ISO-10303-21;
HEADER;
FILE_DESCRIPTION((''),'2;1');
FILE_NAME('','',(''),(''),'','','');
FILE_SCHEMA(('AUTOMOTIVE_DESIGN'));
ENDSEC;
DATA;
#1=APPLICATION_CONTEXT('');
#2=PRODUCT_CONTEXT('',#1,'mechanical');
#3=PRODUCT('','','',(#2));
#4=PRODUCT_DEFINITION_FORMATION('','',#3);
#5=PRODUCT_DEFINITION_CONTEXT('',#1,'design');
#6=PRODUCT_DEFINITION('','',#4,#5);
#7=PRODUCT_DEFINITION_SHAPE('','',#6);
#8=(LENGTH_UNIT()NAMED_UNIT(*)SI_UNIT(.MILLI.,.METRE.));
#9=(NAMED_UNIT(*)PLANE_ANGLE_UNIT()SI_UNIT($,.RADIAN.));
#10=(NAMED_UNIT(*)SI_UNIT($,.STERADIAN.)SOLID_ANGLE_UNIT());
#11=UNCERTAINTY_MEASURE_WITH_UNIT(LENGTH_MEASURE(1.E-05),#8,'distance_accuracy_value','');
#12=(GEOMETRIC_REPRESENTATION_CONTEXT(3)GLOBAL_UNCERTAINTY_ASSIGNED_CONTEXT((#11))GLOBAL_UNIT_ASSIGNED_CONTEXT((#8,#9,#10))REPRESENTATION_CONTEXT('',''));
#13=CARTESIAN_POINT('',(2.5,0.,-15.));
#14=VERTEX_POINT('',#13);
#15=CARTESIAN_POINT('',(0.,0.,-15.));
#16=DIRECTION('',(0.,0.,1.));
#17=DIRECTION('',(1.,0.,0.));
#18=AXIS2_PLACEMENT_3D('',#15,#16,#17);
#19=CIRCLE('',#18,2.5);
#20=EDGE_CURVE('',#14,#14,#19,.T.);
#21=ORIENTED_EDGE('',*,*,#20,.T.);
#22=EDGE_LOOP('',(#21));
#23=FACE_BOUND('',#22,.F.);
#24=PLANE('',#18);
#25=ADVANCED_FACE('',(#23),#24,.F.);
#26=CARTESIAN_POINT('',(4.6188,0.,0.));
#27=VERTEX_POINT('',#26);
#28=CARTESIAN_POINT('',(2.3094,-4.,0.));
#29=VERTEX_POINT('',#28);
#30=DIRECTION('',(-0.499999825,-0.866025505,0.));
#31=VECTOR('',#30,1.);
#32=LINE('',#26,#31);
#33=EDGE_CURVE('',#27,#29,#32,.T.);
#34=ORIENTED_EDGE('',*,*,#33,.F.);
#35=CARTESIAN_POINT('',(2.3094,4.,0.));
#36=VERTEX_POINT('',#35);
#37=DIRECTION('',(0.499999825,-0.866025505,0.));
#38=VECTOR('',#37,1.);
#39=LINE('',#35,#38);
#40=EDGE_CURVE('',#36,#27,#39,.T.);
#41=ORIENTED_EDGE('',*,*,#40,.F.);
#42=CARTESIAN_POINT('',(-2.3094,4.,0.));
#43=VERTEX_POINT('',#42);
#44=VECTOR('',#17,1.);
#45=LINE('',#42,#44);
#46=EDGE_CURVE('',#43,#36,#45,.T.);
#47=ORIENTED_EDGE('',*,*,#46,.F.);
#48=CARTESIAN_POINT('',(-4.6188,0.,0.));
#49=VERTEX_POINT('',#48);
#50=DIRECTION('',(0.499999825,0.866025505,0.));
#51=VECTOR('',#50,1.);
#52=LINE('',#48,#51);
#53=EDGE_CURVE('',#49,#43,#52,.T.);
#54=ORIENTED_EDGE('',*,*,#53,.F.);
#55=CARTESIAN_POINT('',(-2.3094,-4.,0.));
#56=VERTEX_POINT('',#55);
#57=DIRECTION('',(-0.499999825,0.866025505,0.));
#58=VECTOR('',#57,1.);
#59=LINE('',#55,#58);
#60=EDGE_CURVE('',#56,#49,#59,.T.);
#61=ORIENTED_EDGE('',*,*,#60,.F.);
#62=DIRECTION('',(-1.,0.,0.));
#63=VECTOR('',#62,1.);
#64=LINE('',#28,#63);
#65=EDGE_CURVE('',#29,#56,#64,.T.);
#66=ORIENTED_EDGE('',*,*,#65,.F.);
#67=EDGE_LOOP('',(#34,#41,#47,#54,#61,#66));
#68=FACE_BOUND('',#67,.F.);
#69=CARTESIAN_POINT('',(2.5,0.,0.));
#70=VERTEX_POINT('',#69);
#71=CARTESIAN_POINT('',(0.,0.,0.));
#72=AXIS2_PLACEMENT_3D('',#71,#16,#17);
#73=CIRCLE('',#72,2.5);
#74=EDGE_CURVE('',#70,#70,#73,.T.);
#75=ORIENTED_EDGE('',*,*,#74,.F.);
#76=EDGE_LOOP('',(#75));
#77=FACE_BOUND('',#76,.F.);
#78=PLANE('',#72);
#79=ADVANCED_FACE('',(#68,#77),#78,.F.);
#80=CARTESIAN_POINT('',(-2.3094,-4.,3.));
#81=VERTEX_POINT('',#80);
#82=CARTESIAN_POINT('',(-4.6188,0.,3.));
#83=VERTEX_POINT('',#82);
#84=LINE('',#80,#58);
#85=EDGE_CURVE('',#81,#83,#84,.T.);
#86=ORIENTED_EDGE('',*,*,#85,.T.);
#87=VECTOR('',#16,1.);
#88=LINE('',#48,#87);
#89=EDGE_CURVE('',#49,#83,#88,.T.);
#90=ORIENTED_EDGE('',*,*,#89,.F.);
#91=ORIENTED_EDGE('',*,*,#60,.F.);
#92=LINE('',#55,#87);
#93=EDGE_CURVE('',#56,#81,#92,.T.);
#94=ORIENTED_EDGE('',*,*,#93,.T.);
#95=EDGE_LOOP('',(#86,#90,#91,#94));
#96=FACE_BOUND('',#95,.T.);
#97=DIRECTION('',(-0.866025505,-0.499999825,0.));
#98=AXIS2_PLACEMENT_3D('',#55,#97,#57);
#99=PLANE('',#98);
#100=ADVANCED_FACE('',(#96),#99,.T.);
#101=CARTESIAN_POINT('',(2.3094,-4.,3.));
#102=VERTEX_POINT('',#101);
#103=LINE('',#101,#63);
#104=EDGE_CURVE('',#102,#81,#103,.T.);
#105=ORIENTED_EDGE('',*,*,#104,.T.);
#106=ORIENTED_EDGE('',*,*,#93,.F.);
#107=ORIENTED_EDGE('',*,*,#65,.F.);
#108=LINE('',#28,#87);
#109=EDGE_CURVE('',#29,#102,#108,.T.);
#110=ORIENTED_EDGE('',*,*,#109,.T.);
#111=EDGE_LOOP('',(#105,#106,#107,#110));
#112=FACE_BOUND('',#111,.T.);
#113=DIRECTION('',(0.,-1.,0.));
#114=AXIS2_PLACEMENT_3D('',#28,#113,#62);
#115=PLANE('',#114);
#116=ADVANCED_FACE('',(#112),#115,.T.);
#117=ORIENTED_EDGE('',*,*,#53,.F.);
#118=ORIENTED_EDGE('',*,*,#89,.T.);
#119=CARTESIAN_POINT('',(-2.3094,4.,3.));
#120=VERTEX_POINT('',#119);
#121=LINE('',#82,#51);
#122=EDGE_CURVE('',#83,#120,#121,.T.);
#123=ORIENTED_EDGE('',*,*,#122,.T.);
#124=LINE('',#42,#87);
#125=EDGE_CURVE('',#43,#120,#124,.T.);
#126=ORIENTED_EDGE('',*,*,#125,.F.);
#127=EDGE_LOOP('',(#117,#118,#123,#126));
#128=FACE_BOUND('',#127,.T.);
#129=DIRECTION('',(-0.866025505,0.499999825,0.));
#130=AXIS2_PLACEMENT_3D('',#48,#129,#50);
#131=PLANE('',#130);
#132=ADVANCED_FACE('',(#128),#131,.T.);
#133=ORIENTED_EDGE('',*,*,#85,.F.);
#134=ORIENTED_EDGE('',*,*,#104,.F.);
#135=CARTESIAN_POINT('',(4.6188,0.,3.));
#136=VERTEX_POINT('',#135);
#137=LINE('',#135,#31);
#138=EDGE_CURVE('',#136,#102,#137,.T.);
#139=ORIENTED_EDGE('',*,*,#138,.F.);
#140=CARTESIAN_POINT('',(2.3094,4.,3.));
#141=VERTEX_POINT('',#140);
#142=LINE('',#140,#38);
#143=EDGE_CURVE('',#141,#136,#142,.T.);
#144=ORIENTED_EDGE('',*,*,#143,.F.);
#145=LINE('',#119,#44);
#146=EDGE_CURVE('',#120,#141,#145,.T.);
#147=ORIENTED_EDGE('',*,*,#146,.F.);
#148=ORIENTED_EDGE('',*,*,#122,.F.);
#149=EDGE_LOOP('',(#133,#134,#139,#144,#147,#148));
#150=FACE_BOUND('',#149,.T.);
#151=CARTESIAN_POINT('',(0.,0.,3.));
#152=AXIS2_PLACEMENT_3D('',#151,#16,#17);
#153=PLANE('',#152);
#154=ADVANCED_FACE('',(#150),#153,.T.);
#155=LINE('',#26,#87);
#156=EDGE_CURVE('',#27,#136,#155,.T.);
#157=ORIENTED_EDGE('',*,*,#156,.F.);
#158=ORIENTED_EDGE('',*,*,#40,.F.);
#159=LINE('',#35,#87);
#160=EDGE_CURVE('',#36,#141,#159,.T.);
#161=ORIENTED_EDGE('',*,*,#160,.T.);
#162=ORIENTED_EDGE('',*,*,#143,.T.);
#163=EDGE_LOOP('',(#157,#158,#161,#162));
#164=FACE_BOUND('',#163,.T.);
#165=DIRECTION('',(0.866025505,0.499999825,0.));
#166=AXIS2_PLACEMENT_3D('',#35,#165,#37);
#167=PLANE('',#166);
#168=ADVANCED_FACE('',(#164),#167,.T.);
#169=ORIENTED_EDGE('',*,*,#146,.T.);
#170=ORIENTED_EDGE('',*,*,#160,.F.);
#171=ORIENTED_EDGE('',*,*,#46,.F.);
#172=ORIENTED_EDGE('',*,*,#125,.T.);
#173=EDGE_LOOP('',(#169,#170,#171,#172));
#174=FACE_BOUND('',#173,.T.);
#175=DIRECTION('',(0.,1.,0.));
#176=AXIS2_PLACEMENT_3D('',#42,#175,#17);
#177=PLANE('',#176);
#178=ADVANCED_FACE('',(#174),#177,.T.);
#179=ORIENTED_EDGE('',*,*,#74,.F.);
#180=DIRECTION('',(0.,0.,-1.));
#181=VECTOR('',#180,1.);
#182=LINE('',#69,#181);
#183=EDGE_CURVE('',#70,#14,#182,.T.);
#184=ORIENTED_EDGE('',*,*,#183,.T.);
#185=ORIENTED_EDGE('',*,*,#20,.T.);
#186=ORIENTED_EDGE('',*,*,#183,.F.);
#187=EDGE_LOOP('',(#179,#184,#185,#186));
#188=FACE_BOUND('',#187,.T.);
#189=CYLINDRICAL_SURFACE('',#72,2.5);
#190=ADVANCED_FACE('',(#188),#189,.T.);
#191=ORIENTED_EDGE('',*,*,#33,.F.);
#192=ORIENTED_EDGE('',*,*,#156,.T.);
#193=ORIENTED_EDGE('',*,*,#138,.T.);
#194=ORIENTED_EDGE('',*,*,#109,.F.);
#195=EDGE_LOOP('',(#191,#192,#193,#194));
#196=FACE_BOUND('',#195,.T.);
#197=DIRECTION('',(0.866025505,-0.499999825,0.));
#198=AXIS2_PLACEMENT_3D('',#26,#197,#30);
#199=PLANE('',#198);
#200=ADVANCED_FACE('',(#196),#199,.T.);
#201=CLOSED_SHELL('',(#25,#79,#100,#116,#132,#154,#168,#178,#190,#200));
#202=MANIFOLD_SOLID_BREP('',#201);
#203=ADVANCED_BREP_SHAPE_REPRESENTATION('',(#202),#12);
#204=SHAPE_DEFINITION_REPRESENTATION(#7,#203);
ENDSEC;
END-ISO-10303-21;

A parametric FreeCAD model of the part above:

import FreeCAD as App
import Part
import Sketcher
Q = App.Units.Quantity

doc = App.newDocument("Part")
body = doc.addObject("PartDesign::Body", "Body")

sketch1 = body.newObject("Sketcher::SketchObject", "Sketch")
sketch1.AttachmentSupport = (doc.getObject("XY_Plane"), [""])
sketch1.MapMode = "FlatFace"
sketch1.addGeometry([
    Part.LineSegment(App.Vector(4.6188, 0, 0), App.Vector(2.3094, 4, 0)),
    Part.LineSegment(App.Vector(2.3094, 4, 0), App.Vector(-2.3094, 4, 0)),
    Part.LineSegment(App.Vector(-2.3094, 4, 0), App.Vector(-4.6188, 0, 0)),
    Part.LineSegment(App.Vector(-4.6188, 0, 0), App.Vector(-2.3094, -4, 0)),
    Part.LineSegment(App.Vector(-2.3094, -4, 0), App.Vector(2.3094, -4, 0)),
    Part.LineSegment(App.Vector(2.3094, -4, 0), App.Vector(4.6188, 0, 0)),
], False)
sketch1.addConstraint([
    Sketcher.Constraint("Coincident", 0, 2, 1, 1),
    Sketcher.Constraint("Coincident", 1, 2, 2, 1),
    Sketcher.Constraint("Coincident", 2, 2, 3, 1),
    Sketcher.Constraint("Coincident", 3, 2, 4, 1),
    Sketcher.Constraint("Coincident", 4, 2, 5, 1),
    Sketcher.Constraint("Coincident", 5, 2, 0, 1),
    Sketcher.Constraint("Horizontal", 1),
    Sketcher.Constraint("Horizontal", 4),
    Sketcher.Constraint("Symmetric", 0, 2, 3, 2, -1, 1),
    Sketcher.Constraint("Symmetric", 2, 2, 5, 2, -1, 1),
    Sketcher.Constraint("PointOnObject", 2, 2, -1),
    Sketcher.Constraint("Parallel", 2, 5),
    Sketcher.Constraint("Vertical", 1, 2, 3, 2),
    Sketcher.Constraint("DistanceY", 3, 2, 1, 2, Q("8 mm")),
    Sketcher.Constraint("Angle", 0, Q("120 deg")),
    Sketcher.Constraint("DistanceX", 1, 2, 1, 1, Q("4.6188 mm")),
])
pad1 = body.newObject("PartDesign::Pad", "Pad")
pad1.Profile = sketch1
pad1.Length = 3

sketch2 = body.newObject("Sketcher::SketchObject", "Sketch001")
sketch2.AttachmentSupport = (doc.getObject("XY_Plane"), [""])
sketch2.MapMode = "FlatFace"
sketch2.addGeometry(Part.Circle(App.Vector(0, 0, 0), App.Vector(0, 0, 1), 2.5), False)
sketch2.addConstraint([
    Sketcher.Constraint("Coincident", 0, 3, -1, 1),
    Sketcher.Constraint("Diameter", 0, Q("5 mm")),
])
pad2 = body.newObject("PartDesign::Pad", "Pad001")
pad2.Profile = sketch2
pad2.Length = 15
pad2.Reversed = True

doc.recompute()
